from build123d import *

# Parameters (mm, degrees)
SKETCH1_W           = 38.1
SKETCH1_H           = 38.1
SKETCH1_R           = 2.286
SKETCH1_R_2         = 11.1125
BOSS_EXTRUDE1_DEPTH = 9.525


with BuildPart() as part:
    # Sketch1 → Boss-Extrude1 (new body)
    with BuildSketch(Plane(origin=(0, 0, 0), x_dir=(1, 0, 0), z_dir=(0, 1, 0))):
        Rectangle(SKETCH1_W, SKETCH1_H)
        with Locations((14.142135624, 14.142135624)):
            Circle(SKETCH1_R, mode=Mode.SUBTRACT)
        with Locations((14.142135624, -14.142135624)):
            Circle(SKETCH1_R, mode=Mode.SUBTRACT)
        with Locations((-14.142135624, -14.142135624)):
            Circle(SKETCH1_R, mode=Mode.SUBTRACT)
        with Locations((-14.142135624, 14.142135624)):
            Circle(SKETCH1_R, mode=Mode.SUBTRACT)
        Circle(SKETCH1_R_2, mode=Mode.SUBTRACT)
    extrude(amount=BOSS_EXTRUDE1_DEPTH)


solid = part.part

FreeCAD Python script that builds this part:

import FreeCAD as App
import Part
import Sketcher
from FreeCAD import Vector
Q = App.Units.Quantity

doc = App.newDocument("Part")
body = doc.addObject("PartDesign::Body", "Body")

sketch1 = body.newObject("Sketcher::SketchObject", "Sketch")
sketch1.AttachmentSupport = (doc.getObject("XZ_Plane"), [""])
sketch1.MapMode = "FlatFace"
sketch1.addGeometry(Part.LineSegment(Vector(-19.1, -19.1, 0), Vector(-19.1, 19.1, 0)), False)
sketch1.addGeometry(Part.LineSegment(Vector(-19.1, 19.1, 0), Vector(19.1, 19.1, 0)), False)
sketch1.addGeometry(Part.LineSegment(Vector(19.1, 19.1, 0), Vector(19.1, -19.1, 0)), False)
sketch1.addGeometry(Part.LineSegment(Vector(19.1, -19.1, 0), Vector(-19.1, -19.1, 0)), False)
sketch1.addGeometry(Part.Circle(Vector(-14.1, 14.1, 0), Vector(0, 0, 1), 2.3), False)
sketch1.addGeometry(Part.Circle(Vector(14.1, 14.1, 0), Vector(0, 0, 1), 2.3), False)
sketch1.addGeometry(Part.Circle(Vector(-14.1, -14.1, 0), Vector(0, 0, 1), 2.3), False)
sketch1.addGeometry(Part.Circle(Vector(0, 0, 0), Vector(0, 0, 1), 11.1), False)
sketch1.addGeometry(Part.Circle(Vector(14.1, -14.1, 0), Vector(0, 0, 1), 2.3), False)
sketch1.addConstraint(Sketcher.Constraint("Coincident", 0, 2, 1, 1))
sketch1.addConstraint(Sketcher.Constraint("Coincident", 1, 2, 2, 1))
sketch1.addConstraint(Sketcher.Constraint("Coincident", 2, 2, 3, 1))
sketch1.addConstraint(Sketcher.Constraint("Coincident", 3, 2, 0, 1))
sketch1.addConstraint(Sketcher.Constraint("Vertical", 0))
sketch1.addConstraint(Sketcher.Constraint("Horizontal", 1))
sketch1.addConstraint(Sketcher.Constraint("Vertical", 2))
sketch1.addConstraint(Sketcher.Constraint("Horizontal", 3))
sketch1.addConstraint(Sketcher.Constraint("Coincident", 7, 3, -1, 1))
sketch1.addConstraint(Sketcher.Constraint("Equal", 4, 5))
sketch1.addConstraint(Sketcher.Constraint("Equal", 5, 6))
sketch1.addConstraint(Sketcher.Constraint("Equal", 6, 8))
sketch1.addConstraint(Sketcher.Constraint("Symmetric", 5, 3, 6, 3, -1, 1))
sketch1.addConstraint(Sketcher.Constraint("Symmetric", 4, 3, 8, 3, -1, 1))
sketch1.addConstraint(Sketcher.Constraint("Symmetric", 0, 2, 2, 2, -1, 1))
sketch1.addConstraint(Sketcher.Constraint("Symmetric", 4, 3, 5, 3, -2))
sketch1.addConstraint(Sketcher.Constraint("Equal", 3, 0))
sketch1.addConstraint(Sketcher.Constraint("Diameter", 4, Q("0.18 in")))
sketch1.addConstraint(Sketcher.Constraint("Diameter", 7, Q("0.875 in")))
sketch1.addConstraint(Sketcher.Constraint("DistanceX", 1, 1, 1, 2, Q("1.5 in")))
sketch1.addConstraint(Sketcher.Constraint("DistanceX", 4, 3, 5, 3, 28.284271))
sketch1.addConstraint(Sketcher.Constraint("DistanceY", 6, 3, 4, 3, 28.284271))
pad1 = body.newObject("PartDesign::Pad", "Pad")
pad1.Profile = sketch1
pad1.Length = Q("0.375 in")
pad1.Reversed = True

doc.recompute()
